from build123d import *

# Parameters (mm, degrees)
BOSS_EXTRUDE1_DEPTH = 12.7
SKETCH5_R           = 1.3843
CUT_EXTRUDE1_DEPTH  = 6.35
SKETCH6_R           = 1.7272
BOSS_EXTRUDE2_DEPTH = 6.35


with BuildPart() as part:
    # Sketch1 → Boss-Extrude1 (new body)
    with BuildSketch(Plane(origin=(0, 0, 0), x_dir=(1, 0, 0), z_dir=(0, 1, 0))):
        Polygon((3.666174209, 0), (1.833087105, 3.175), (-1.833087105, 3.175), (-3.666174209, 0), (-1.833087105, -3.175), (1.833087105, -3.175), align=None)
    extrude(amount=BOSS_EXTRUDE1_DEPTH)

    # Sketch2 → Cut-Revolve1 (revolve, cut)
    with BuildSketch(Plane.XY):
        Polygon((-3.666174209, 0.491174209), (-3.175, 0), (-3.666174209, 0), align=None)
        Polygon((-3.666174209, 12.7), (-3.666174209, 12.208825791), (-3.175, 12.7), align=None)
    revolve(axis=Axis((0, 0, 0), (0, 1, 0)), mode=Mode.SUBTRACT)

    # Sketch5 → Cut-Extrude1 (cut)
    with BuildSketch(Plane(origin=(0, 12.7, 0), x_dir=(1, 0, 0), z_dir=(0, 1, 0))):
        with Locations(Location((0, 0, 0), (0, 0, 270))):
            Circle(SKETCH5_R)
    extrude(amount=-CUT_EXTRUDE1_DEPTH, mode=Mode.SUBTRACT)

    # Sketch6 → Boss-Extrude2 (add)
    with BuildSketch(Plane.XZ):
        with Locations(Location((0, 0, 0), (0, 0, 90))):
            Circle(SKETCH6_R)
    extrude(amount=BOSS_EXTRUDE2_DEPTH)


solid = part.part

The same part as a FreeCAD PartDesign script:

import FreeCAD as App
import Part
import Sketcher
Q = App.Units.Quantity

doc = App.newDocument("Part")
body = doc.addObject("PartDesign::Body", "Body")

# Sketch on XZ plane
sketch1 = body.newObject("Sketcher::SketchObject", "Sketch")
sketch1.AttachmentSupport = (doc.getObject("XZ_Plane"), [""])
sketch1.MapMode = "FlatFace"
sketch1.addGeometry([
    Part.LineSegment(App.Vector(3.7, 0, 0), App.Vector(1.8, -3.2, 0)),  # 0
    Part.LineSegment(App.Vector(1.8, -3.2, 0), App.Vector(-1.8, -3.2, 0)),  # 1
    Part.LineSegment(App.Vector(-1.8, -3.2, 0), App.Vector(-3.7, 0, 0)),  # 2
    Part.LineSegment(App.Vector(-3.7, 0, 0), App.Vector(-1.8, 3.2, 0)),  # 3
    Part.LineSegment(App.Vector(-1.8, 3.2, 0), App.Vector(1.8, 3.2, 0)),  # 4
    Part.LineSegment(App.Vector(1.8, 3.2, 0), App.Vector(3.7, 0, 0)),  # 5
], False)
sketch1.addConstraint([
    Sketcher.Constraint("Coincident", 0, 2, 1, 1),
    Sketcher.Constraint("Coincident", 1, 2, 2, 1),
    Sketcher.Constraint("Coincident", 2, 2, 3, 1),
    Sketcher.Constraint("Coincident", 3, 2, 4, 1),
    Sketcher.Constraint("Coincident", 4, 2, 5, 1),
    Sketcher.Constraint("Coincident", 5, 2, 0, 1),
    Sketcher.Constraint("Horizontal", 1),
    Sketcher.Constraint("Horizontal", 4),
    Sketcher.Constraint("Symmetric", 0, 2, 3, 2, -1, 1),
    Sketcher.Constraint("Symmetric", 2, 2, 5, 2, -1, 1),
    Sketcher.Constraint("PointOnObject", 2, 2, -1),
    Sketcher.Constraint("Parallel", 2, 5),
    Sketcher.Constraint("Vertical", 1, 2, 3, 2),
    Sketcher.Constraint("Angle", 0, Q("-120 deg")),
    Sketcher.Constraint("DistanceY", 1, 2, 3, 2, Q("0.25 in")),
    Sketcher.Constraint("DistanceX", 1, 2, 1, 1, Q("3.666174 mm")),
])
pad1 = body.newObject("PartDesign::Pad", "Pad")
pad1.Profile = sketch1
pad1.Length = Q("0.5 in")
pad1.Reversed = True

# Sketch on XY plane
sketch2 = body.newObject("Sketcher::SketchObject", "Sketch001")
sketch2.AttachmentSupport = (doc.getObject("XY_Plane"), [""])
sketch2.MapMode = "FlatFace"
sketch2.addGeometry([
    Part.LineSegment(App.Vector(-3.17, 0, 0), App.Vector(-3.67, 0.49, 0)),  # 0
    Part.LineSegment(App.Vector(-3.67, 0.49, 0), App.Vector(-3.67, 0, 0)),  # 1
    Part.LineSegment(App.Vector(-3.67, 0, 0), App.Vector(-3.17, 0, 0)),  # 2
    Part.LineSegment(App.Vector(-3.67, 12.7, 0), App.Vector(-3.67, 12.21, 0)),  # 3
    Part.LineSegment(App.Vector(-3.67, 12.21, 0), App.Vector(-3.17, 12.7, 0)),  # 4
    Part.LineSegment(App.Vector(-3.17, 12.7, 0), App.Vector(-3.67, 12.7, 0)),  # 5
], False)
sketch2.addConstraint([
    Sketcher.Constraint("Coincident", 0, 2, 1, 1),
    Sketcher.Constraint("Coincident", 1, 2, 2, 1),
    Sketcher.Constraint("Coincident", 2, 2, 0, 1),
    Sketcher.Constraint("Coincident", 3, 2, 4, 1),
    Sketcher.Constraint("Coincident", 4, 2, 5, 1),
    Sketcher.Constraint("Coincident", 5, 2, 3, 1),
    Sketcher.Constraint("Vertical", 1),
    Sketcher.Constraint("Horizontal", 2),
    Sketcher.Constraint("Vertical", 3),
    Sketcher.Constraint("Horizontal", 5),
    Sketcher.Constraint("PointOnObject", 1, 2, -1),
    Sketcher.Constraint("Perpendicular", 0, 4),
    Sketcher.Constraint("Vertical", 1, 2, 3, 2),
    Sketcher.Constraint("Vertical", 2, 2, 4, 2),
    Sketcher.Constraint("Equal", 5, 1),
    Sketcher.Constraint("DistanceY", -1, 1, 4, 2, Q("0.5 in")),
    Sketcher.Constraint("DistanceX", 2, 2, -1, 1, Q("0.125 in")),
    Sketcher.Constraint("DistanceX", 2, 1, 2, 2, Q("0.491174 mm")),
])
groove = body.newObject("PartDesign::Groove", "Groove")
groove.Profile = sketch2
groove.ReferenceAxis = (sketch2, ["V_Axis"])
groove.Angle = 360

# Sketch on XZ plane
sketch3 = body.newObject("Sketcher::SketchObject", "Sketch002")
sketch3.AttachmentSupport = (doc.getObject("XZ_Plane"), [""])
sketch3.MapMode = "FlatFace"
sketch3.AttachmentOffset = App.Placement(App.Vector(0, 0, -0.5 * 25.4), App.Rotation())
sketch3.addGeometry(Part.Circle(App.Vector(0, 0, 0), App.Vector(0, 0, 1), 1.4), False)
sketch3.addConstraint([
    Sketcher.Constraint("Coincident", 0, 3, -1, 1),
    Sketcher.Constraint("Diameter", 0, Q("0.109 in")),
])
pocket1 = body.newObject("PartDesign::Pocket", "Pocket")
pocket1.Profile = sketch3
pocket1.Length = Q("0.25 in")
pocket1.Reversed = True

# Sketch on XZ plane
sketch4 = body.newObject("Sketcher::SketchObject", "Sketch003")
sketch4.AttachmentSupport = (doc.getObject("XZ_Plane"), [""])
sketch4.MapMode = "FlatFace"
sketch4.addGeometry(Part.Circle(App.Vector(0, 0, 0), App.Vector(0, 0, 1), 1.7), False)
sketch4.addConstraint([
    Sketcher.Constraint("Coincident", 0, 3, -1, 1),
    Sketcher.Constraint("Diameter", 0, Q("0.136 in")),
])
pad2 = body.newObject("PartDesign::Pad", "Pad001")
pad2.Profile = sketch4
pad2.Length = Q("0.25 in")

doc.recompute()
